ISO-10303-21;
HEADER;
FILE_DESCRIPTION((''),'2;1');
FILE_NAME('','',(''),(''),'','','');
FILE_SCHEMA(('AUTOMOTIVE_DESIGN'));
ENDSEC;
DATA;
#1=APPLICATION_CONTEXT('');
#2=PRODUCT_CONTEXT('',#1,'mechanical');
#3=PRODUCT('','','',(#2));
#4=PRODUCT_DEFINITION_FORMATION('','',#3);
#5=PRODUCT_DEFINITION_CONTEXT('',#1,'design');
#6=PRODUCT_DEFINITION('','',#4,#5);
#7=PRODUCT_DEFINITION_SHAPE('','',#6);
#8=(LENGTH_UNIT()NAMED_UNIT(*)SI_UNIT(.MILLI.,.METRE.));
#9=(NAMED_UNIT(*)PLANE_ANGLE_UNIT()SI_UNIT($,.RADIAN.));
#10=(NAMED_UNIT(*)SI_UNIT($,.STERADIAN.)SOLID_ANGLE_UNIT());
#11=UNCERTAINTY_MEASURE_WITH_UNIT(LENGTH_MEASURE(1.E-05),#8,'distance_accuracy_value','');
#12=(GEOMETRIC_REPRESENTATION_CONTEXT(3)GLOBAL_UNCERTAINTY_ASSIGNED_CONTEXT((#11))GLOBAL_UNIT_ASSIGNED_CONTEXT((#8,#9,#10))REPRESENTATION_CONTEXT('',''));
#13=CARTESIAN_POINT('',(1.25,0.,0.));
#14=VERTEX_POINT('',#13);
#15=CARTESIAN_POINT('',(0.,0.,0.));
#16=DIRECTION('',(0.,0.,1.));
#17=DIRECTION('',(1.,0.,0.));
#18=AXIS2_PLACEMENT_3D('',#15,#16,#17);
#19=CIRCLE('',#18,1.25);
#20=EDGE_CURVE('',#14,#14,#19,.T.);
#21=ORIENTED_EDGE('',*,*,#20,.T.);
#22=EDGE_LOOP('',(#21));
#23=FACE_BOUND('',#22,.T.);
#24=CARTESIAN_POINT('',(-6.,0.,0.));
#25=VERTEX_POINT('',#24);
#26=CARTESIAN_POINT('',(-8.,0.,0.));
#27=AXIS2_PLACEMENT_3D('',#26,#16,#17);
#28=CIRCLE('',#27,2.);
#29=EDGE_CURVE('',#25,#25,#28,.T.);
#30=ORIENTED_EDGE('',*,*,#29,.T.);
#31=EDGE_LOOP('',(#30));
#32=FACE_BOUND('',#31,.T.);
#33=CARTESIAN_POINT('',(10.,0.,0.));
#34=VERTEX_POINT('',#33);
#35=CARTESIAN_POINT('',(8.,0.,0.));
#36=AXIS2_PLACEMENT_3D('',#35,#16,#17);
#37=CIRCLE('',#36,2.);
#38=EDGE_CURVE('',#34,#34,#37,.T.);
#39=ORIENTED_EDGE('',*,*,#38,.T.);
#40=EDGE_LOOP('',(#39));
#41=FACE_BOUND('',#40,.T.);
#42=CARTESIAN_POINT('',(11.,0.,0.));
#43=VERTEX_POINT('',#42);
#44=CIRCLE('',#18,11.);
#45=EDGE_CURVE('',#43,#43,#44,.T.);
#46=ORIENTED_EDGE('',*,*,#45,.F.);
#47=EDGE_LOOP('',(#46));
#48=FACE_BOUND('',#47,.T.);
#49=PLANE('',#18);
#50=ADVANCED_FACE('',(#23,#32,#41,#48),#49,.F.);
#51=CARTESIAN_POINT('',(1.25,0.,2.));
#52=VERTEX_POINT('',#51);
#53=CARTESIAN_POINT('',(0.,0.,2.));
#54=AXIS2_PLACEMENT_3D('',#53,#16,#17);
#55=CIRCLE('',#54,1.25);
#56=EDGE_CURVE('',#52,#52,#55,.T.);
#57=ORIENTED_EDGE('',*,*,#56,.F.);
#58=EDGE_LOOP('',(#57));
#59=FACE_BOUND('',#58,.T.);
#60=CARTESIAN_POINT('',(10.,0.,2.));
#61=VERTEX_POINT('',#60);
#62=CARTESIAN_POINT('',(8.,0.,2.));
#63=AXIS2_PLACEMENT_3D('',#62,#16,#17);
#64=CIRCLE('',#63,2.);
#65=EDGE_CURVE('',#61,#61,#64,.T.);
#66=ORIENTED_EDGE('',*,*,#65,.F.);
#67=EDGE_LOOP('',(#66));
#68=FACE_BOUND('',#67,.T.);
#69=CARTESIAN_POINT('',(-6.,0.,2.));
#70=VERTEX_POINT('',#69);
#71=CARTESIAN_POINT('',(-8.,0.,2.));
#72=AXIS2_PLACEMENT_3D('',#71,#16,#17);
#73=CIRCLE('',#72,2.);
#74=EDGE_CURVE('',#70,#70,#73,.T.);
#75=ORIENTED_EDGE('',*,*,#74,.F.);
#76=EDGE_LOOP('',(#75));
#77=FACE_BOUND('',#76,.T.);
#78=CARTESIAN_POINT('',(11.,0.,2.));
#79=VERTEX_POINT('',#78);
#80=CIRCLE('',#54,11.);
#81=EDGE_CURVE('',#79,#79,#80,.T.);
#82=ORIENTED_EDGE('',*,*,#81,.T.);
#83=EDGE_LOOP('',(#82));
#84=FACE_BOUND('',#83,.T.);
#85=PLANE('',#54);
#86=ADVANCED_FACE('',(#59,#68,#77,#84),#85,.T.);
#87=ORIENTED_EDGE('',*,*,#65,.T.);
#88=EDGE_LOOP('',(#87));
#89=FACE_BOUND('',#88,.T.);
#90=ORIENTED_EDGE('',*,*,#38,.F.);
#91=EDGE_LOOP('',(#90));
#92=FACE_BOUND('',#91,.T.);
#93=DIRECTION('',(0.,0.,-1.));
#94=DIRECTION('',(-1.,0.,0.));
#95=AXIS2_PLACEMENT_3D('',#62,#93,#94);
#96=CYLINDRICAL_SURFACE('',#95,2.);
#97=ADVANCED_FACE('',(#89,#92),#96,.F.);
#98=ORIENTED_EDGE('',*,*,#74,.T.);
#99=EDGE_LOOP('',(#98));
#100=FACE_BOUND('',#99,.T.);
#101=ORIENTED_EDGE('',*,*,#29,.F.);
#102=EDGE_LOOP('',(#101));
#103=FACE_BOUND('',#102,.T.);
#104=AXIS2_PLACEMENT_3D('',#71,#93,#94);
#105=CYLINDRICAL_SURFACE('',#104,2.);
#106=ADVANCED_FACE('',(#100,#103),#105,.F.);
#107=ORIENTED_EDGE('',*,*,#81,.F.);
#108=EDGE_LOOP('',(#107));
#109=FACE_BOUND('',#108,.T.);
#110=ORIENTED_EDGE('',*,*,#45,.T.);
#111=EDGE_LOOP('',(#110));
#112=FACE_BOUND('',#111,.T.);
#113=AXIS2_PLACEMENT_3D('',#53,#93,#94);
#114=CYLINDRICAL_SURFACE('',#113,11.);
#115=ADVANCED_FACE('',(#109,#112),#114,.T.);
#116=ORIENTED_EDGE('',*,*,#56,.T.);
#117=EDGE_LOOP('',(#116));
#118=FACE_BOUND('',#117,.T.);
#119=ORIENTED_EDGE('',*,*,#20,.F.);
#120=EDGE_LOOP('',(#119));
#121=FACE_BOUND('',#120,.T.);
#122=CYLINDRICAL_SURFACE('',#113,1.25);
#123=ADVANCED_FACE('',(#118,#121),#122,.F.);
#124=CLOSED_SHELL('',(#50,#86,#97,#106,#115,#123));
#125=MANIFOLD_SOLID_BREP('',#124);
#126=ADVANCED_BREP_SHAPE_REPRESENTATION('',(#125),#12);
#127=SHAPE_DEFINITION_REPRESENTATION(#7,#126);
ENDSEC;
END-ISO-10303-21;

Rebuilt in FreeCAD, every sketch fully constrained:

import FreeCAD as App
import Part
import Sketcher

V = App.Vector

doc = App.newDocument("Part")
body = doc.addObject("PartDesign::Body", "Body")

sketch1 = body.newObject("Sketcher::SketchObject", "Sketch")
sketch1.AttachmentSupport = (doc.getObject("XY_Plane"), [""])
sketch1.MapMode = "FlatFace"
sketch1.addGeometry(Part.Circle(V(0, 0, 0), V(0, 0, 1), 11), False)
sketch1.addGeometry(Part.Circle(V(-8, 0, 0), V(0, 0, 1), 2), False)
sketch1.addGeometry(Part.Circle(V(0, 0, 0), V(0, 0, 1), 1.2), False)
sketch1.addGeometry(Part.Circle(V(8, 0, 0), V(0, 0, 1), 2), False)
sketch1.addConstraint(Sketcher.Constraint("Coincident", 0, 3, -1, 1))
sketch1.addConstraint(Sketcher.Constraint("Coincident", 2, 3, -1, 1))
sketch1.addConstraint(Sketcher.Constraint("Equal", 1, 3))
sketch1.addConstraint(Sketcher.Constraint("Symmetric", 1, 3, 3, 3, -1, 1))
sketch1.addConstraint(Sketcher.Constraint("PointOnObject", 1, 3, -1))
sketch1.addConstraint(Sketcher.Constraint("Diameter", 0, 22.0))
sketch1.addConstraint(Sketcher.Constraint("Diameter", 1, 4.0))
sketch1.addConstraint(Sketcher.Constraint("Diameter", 2, 2.5))
sketch1.addConstraint(Sketcher.Constraint("DistanceX", 1, 3, -1, 1, 8.0))
pad1 = body.newObject("PartDesign::Pad", "Pad")
pad1.Profile = sketch1
pad1.Length = 2

doc.recompute()
